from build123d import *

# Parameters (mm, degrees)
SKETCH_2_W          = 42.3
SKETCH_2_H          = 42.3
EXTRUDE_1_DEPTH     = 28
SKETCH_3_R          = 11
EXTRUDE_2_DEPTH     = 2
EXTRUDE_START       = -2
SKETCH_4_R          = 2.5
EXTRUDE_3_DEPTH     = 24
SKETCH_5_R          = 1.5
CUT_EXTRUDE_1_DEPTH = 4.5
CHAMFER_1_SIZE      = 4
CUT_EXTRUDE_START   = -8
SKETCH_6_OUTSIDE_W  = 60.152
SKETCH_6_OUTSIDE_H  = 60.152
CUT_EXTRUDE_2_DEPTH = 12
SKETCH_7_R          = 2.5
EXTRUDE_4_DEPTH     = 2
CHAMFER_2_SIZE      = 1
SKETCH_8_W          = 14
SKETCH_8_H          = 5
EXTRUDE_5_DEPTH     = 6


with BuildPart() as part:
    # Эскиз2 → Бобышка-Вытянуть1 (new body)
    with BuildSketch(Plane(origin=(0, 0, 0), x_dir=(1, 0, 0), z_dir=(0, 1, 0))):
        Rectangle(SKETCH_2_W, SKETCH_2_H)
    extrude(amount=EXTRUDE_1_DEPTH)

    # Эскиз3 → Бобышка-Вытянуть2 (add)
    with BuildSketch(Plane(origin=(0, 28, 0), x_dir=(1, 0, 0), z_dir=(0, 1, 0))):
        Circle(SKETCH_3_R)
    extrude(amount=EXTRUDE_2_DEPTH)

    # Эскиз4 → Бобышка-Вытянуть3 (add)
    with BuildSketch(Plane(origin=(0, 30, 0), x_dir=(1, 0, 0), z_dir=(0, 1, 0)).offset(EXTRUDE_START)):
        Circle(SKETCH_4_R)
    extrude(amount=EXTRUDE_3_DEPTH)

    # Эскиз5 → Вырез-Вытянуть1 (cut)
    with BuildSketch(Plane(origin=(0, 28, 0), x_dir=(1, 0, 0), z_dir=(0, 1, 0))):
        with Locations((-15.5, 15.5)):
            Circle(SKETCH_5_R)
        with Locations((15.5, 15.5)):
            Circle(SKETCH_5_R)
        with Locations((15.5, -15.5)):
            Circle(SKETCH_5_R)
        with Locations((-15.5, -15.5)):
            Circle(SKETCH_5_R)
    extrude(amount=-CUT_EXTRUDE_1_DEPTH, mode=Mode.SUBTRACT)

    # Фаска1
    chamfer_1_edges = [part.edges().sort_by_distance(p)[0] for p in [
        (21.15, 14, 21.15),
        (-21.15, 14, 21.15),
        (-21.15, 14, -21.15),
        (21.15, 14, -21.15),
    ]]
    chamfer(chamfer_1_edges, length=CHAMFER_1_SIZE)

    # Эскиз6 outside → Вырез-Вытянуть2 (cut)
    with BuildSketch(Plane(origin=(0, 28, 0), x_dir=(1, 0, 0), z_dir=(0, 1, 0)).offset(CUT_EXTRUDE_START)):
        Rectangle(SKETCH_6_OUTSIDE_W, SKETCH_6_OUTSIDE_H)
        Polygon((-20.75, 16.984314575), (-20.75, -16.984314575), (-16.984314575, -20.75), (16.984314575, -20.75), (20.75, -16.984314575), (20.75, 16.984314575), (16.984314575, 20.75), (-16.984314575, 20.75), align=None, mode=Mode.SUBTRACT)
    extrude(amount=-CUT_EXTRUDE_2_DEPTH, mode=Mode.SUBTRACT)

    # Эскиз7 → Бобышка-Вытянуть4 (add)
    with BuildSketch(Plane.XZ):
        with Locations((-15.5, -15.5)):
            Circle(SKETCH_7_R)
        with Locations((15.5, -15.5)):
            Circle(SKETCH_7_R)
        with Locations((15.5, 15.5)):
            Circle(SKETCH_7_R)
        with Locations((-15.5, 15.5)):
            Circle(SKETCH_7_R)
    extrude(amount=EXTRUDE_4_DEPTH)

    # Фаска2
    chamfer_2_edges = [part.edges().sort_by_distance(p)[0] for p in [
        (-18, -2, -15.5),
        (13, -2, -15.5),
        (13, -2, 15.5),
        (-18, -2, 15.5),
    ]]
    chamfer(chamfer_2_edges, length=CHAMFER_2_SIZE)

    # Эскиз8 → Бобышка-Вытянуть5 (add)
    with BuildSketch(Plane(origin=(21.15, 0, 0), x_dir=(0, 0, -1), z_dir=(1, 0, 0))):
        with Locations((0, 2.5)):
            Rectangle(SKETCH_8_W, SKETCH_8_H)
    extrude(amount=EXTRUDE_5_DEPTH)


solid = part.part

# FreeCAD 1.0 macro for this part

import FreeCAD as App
import Part
import Sketcher


def edges_at(feature, points):
    """Names of the edges that pass closest to the given points."""
    edges = feature.Shape.Edges
    near = lambda p: min(range(len(edges)), key=lambda i: edges[i].distToShape(Part.Vertex(*p))[0])
    return sorted({f"Edge{near(p) + 1}" for p in points})

doc = App.newDocument("Part")
body = doc.addObject("PartDesign::Body", "Body")

# Sketch on XZ plane
sketch1 = doc.addObject("Sketcher::SketchObject", "Sketch")
body.addObject(sketch1)
sketch1.AttachmentSupport = (doc.XZ_Plane, [""])
sketch1.MapMode = "FlatFace"
sketch1.addGeometry([
    Part.LineSegment(App.Vector(-21.15, -21.15, 0), App.Vector(-21.15, 21.15, 0)),
    Part.LineSegment(App.Vector(-21.15, 21.15, 0), App.Vector(21.15, 21.15, 0)),
    Part.LineSegment(App.Vector(21.15, 21.15, 0), App.Vector(21.15, -21.15, 0)),
    Part.LineSegment(App.Vector(21.15, -21.15, 0), App.Vector(-21.15, -21.15, 0)),
], False)
sketch1.addConstraint([
    Sketcher.Constraint("Coincident", 0, 2, 1, 1),
    Sketcher.Constraint("Coincident", 1, 2, 2, 1),
    Sketcher.Constraint("Coincident", 2, 2, 3, 1),
    Sketcher.Constraint("Coincident", 3, 2, 0, 1),
    Sketcher.Constraint("Vertical", 0),
    Sketcher.Constraint("Horizontal", 1),
    Sketcher.Constraint("Vertical", 2),
    Sketcher.Constraint("Horizontal", 3),
    Sketcher.Constraint("Symmetric", 0, 2, 2, 2, -1, 1),
    Sketcher.Constraint("Equal", 3, 0),
    Sketcher.Constraint("DistanceX", 1, 1, 1, 2, 42.3),
])
pad1 = doc.addObject("PartDesign::Pad", "Pad")
body.addObject(pad1)
pad1.Profile = sketch1
pad1.Length = 28
pad1.Reversed = True

# Sketch on XZ plane
sketch2 = doc.addObject("Sketcher::SketchObject", "Sketch001")
body.addObject(sketch2)
sketch2.AttachmentSupport = (doc.XZ_Plane, [""])
sketch2.MapMode = "FlatFace"
sketch2.AttachmentOffset = App.Placement(App.Vector(0, 0, -28), App.Rotation())
sketch2.addGeometry(Part.Circle(App.Vector(0, 0, 0), App.Vector(0, 0, 1), 11), False)
sketch2.addConstraint([
    Sketcher.Constraint("Coincident", 0, 3, -1, 1),
    Sketcher.Constraint("Diameter", 0, 22.0),
])
pad2 = doc.addObject("PartDesign::Pad", "Pad001")
body.addObject(pad2)
pad2.Profile = sketch2
pad2.Length = 2
pad2.Reversed = True

# Sketch on XZ plane
sketch3 = doc.addObject("Sketcher::SketchObject", "Sketch002")
body.addObject(sketch3)
sketch3.AttachmentSupport = (doc.XZ_Plane, [""])
sketch3.MapMode = "FlatFace"
sketch3.AttachmentOffset = App.Placement(App.Vector(0, 0, -28), App.Rotation())
sketch3.addGeometry(Part.Circle(App.Vector(0, 0, 0), App.Vector(0, 0, 1), 2.5), False)
sketch3.addConstraint([
    Sketcher.Constraint("Coincident", 0, 3, -1, 1),
    Sketcher.Constraint("Diameter", 0, 5.0),
])
pad3 = doc.addObject("PartDesign::Pad", "Pad002")
body.addObject(pad3)
pad3.Profile = sketch3
pad3.Length = 24
pad3.Reversed = True

# Sketch on XZ plane
sketch4 = doc.addObject("Sketcher::SketchObject", "Sketch003")
body.addObject(sketch4)
sketch4.AttachmentSupport = (doc.XZ_Plane, [""])
sketch4.MapMode = "FlatFace"
sketch4.AttachmentOffset = App.Placement(App.Vector(0, 0, -28), App.Rotation())
sketch4.addGeometry([
    Part.Circle(App.Vector(-15.5, -15.5, 0), App.Vector(0, 0, 1), 1.5),
    Part.Circle(App.Vector(15.5, -15.5, 0), App.Vector(0, 0, 1), 1.5),
    Part.Circle(App.Vector(15.5, 15.5, 0), App.Vector(0, 0, 1), 1.5),
    Part.Circle(App.Vector(-15.5, 15.5, 0), App.Vector(0, 0, 1), 1.5),
], False)
sketch4.addConstraint([
    Sketcher.Constraint("Equal", 0, 1),
    Sketcher.Constraint("Equal", 1, 2),
    Sketcher.Constraint("Equal", 2, 3),
    Sketcher.Constraint("Symmetric", 0, 3, 2, 3, -1, 1),
    Sketcher.Constraint("Symmetric", 1, 3, 3, 3, -1, 1),
    Sketcher.Constraint("Symmetric", 0, 3, 1, 3, -2),
    Sketcher.Constraint("Diameter", 0, 3.0),
    Sketcher.Constraint("DistanceX", 0, 3, 1, 3, 31.0),
    Sketcher.Constraint("DistanceY", 1, 3, 2, 3, 31.0),
])
pocket1 = doc.addObject("PartDesign::Pocket", "Pocket")
body.addObject(pocket1)
pocket1.Profile = sketch4
pocket1.Length = 4.5
pocket1.Reversed = True
doc.recompute()

chamfer = doc.addObject("PartDesign::Chamfer", "Chamfer")
body.addObject(chamfer)
chamfer.Base = (pocket1, edges_at(pocket1, [
    (21.15, 14, 21.15),
    (-21.15, 14, 21.15),
    (-21.15, 14, -21.15),
    (21.15, 14, -21.15),
]))
chamfer.Size = 4

# Sketch on XZ plane
sketch5 = doc.addObject("Sketcher::SketchObject", "Sketch004")
body.addObject(sketch5)
sketch5.AttachmentSupport = (doc.XZ_Plane, [""])
sketch5.MapMode = "FlatFace"
sketch5.AttachmentOffset = App.Placement(App.Vector(0, 0, -20), App.Rotation())
sketch5.addGeometry([
    Part.LineSegment(App.Vector(-30.076, -30.076, 0), App.Vector(-30.076, 30.076, 0)),  # 0
    Part.LineSegment(App.Vector(-30.076, 30.076, 0), App.Vector(30.076, 30.076, 0)),  # 1
    Part.LineSegment(App.Vector(30.076, 30.076, 0), App.Vector(30.076, -30.076, 0)),  # 2
    Part.LineSegment(App.Vector(30.076, -30.076, 0), App.Vector(-30.076, -30.076, 0)),  # 3
    Part.LineSegment(App.Vector(-20.75, 16.984315, 0), App.Vector(-20.75, -16.984315, 0)),  # 4
    Part.LineSegment(App.Vector(-20.75, -16.984315, 0), App.Vector(-16.984315, -20.75, 0)),  # 5
    Part.LineSegment(App.Vector(-16.984315, -20.75, 0), App.Vector(16.984315, -20.75, 0)),  # 6
    Part.LineSegment(App.Vector(16.984315, -20.75, 0), App.Vector(20.75, -16.984315, 0)),  # 7
    Part.LineSegment(App.Vector(20.75, -16.984315, 0), App.Vector(20.75, 16.984315, 0)),  # 8
    Part.LineSegment(App.Vector(20.75, 16.984315, 0), App.Vector(16.984315, 20.75, 0)),  # 9
    Part.LineSegment(App.Vector(16.984315, 20.75, 0), App.Vector(-16.984315, 20.75, 0)),  # 10
    Part.LineSegment(App.Vector(-16.984315, 20.75, 0), App.Vector(-20.75, 16.984315, 0)),  # 11
], False)
sketch5.addConstraint([
    Sketcher.Constraint("Coincident", 0, 2, 1, 1),
    Sketcher.Constraint("Coincident", 1, 2, 2, 1),
    Sketcher.Constraint("Coincident", 2, 2, 3, 1),
    Sketcher.Constraint("Coincident", 3, 2, 0, 1),
    Sketcher.Constraint("Coincident", 4, 2, 5, 1),
    Sketcher.Constraint("Coincident", 5, 2, 6, 1),
    Sketcher.Constraint("Coincident", 6, 2, 7, 1),
    Sketcher.Constraint("Coincident", 7, 2, 8, 1),
    Sketcher.Constraint("Coincident", 8, 2, 9, 1),
    Sketcher.Constraint("Coincident", 9, 2, 10, 1),
    Sketcher.Constraint("Coincident", 10, 2, 11, 1),
    Sketcher.Constraint("Coincident", 11, 2, 4, 1),
    Sketcher.Constraint("Vertical", 0),
    Sketcher.Constraint("Horizontal", 1),
    Sketcher.Constraint("Vertical", 2),
    Sketcher.Constraint("Horizontal", 3),
    Sketcher.Constraint("Vertical", 4),
    Sketcher.Constraint("Horizontal", 6),
    Sketcher.Constraint("Vertical", 8),
    Sketcher.Constraint("Horizontal", 10),
    Sketcher.Constraint("Symmetric", 0, 2, 2, 2, -1, 1),
    Sketcher.Constraint("Symmetric", 4, 2, 8, 2, -1, 1),
    Sketcher.Constraint("Symmetric", 5, 2, 9, 2, -1, 1),
    Sketcher.Constraint("Perpendicular", 5, 7),
    Sketcher.Constraint("Perpendicular", 9, 11),
    Sketcher.Constraint("Horizontal", 4, 2, 7, 2),
    Sketcher.Constraint("Horizontal", 8, 2, 11, 2),
    Sketcher.Constraint("Vertical", 6, 2, 9, 2),
    Sketcher.Constraint("Equal", 3, 0),
    Sketcher.Constraint("Equal", 10, 4),
    Sketcher.Constraint("DistanceX", 4, 2, 7, 2, 41.5),
    Sketcher.Constraint("DistanceX", 1, 1, 1, 2, 60.152),
    Sketcher.Constraint("DistanceX", 6, 1, 6, 2, 33.968629),
])
pocket2 = doc.addObject("PartDesign::Pocket", "Pocket001")
body.addObject(pocket2)
pocket2.Profile = sketch5
pocket2.Length = 12
pocket2.Reversed = True

# Sketch on XZ plane
sketch6 = doc.addObject("Sketcher::SketchObject", "Sketch005")
body.addObject(sketch6)
sketch6.AttachmentSupport = (doc.XZ_Plane, [""])
sketch6.MapMode = "FlatFace"
sketch6.addGeometry([
    Part.Circle(App.Vector(-15.5, -15.5, 0), App.Vector(0, 0, 1), 2.5),
    Part.Circle(App.Vector(15.5, -15.5, 0), App.Vector(0, 0, 1), 2.5),
    Part.Circle(App.Vector(15.5, 15.5, 0), App.Vector(0, 0, 1), 2.5),
    Part.Circle(App.Vector(-15.5, 15.5, 0), App.Vector(0, 0, 1), 2.5),
], False)
sketch6.addConstraint([
    Sketcher.Constraint("Equal", 0, 1),
    Sketcher.Constraint("Equal", 1, 2),
    Sketcher.Constraint("Equal", 2, 3),
    Sketcher.Constraint("Symmetric", 0, 3, 2, 3, -1, 1),
    Sketcher.Constraint("Symmetric", 1, 3, 3, 3, -1, 1),
    Sketcher.Constraint("Symmetric", 0, 3, 1, 3, -2),
    Sketcher.Constraint("Diameter", 0, 5.0),
    Sketcher.Constraint("DistanceX", 0, 3, 1, 3, 31.0),
    Sketcher.Constraint("DistanceY", 1, 3, 2, 3, 31.0),
])
pad4 = doc.addObject("PartDesign::Pad", "Pad003")
body.addObject(pad4)
pad4.Profile = sketch6
pad4.Length = 2
doc.recompute()

chamfer2 = doc.addObject("PartDesign::Chamfer", "Chamfer001")
body.addObject(chamfer2)
chamfer2.Base = (pad4, edges_at(pad4, [
    (-18, -2, -15.5),
    (13, -2, -15.5),
    (13, -2, 15.5),
    (-18, -2, 15.5),
]))
chamfer2.Size = 1

# Sketch on YZ plane
sketch7 = doc.addObject("Sketcher::SketchObject", "Sketch006")
body.addObject(sketch7)
sketch7.AttachmentSupport = (doc.YZ_Plane, [""])
sketch7.MapMode = "FlatFace"
sketch7.AttachmentOffset = App.Placement(App.Vector(0, 0, 21.15), App.Rotation())
sketch7.addGeometry([
    Part.LineSegment(App.Vector(5, 7, 0), App.Vector(0, 7, 0)),
    Part.LineSegment(App.Vector(0, 7, 0), App.Vector(0, -7, 0)),
    Part.LineSegment(App.Vector(0, -7, 0), App.Vector(5, -7, 0)),
    Part.LineSegment(App.Vector(5, -7, 0), App.Vector(5, 7, 0)),
], False)
sketch7.addConstraint([
    Sketcher.Constraint("Coincident", 0, 2, 1, 1),
    Sketcher.Constraint("Coincident", 1, 2, 2, 1),
    Sketcher.Constraint("Coincident", 2, 2, 3, 1),
    Sketcher.Constraint("Coincident", 3, 2, 0, 1),
    Sketcher.Constraint("Horizontal", 0),
    Sketcher.Constraint("Vertical", 1),
    Sketcher.Constraint("Horizontal", 2),
    Sketcher.Constraint("Vertical", 3),
    Sketcher.Constraint("Symmetric", 0, 2, 1, 2, -1, 1),
    Sketcher.Constraint("DistanceX", 0, 2, 0, 1, 5.0),
    Sketcher.Constraint("DistanceY", 1, 2, 1, 1, 14.0),
])
pad5 = doc.addObject("PartDesign::Pad", "Pad004")
body.addObject(pad5)
pad5.Profile = sketch7
pad5.Length = 6

doc.recompute()
